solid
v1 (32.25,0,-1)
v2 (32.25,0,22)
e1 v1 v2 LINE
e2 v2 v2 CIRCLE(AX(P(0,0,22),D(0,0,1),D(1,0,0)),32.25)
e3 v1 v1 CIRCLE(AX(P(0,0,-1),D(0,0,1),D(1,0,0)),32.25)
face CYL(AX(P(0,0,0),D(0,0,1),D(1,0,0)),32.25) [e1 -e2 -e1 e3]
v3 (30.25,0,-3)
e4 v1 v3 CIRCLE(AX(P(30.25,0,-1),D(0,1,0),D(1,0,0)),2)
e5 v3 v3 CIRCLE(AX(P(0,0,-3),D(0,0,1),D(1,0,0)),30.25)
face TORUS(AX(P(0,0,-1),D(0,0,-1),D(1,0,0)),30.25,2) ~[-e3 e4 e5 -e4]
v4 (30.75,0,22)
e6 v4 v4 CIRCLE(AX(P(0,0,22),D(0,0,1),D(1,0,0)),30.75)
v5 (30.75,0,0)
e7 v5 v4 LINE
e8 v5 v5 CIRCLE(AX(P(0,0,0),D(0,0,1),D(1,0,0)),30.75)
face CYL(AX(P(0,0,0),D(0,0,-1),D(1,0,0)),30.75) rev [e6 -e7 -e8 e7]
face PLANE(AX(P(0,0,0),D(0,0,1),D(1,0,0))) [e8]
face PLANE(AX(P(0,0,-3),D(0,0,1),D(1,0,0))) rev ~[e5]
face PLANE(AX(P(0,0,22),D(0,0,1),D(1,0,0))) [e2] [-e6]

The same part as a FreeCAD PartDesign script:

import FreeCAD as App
import Part
import Sketcher

V = App.Vector


def edges_at(feature, points):
    """Names of the edges that pass closest to the given points."""
    edges = feature.Shape.Edges
    near = lambda p: min(range(len(edges)), key=lambda i: edges[i].distToShape(Part.Vertex(*p))[0])
    return sorted({f"Edge{near(p) + 1}" for p in points})

doc = App.newDocument("Part")
body = doc.addObject("PartDesign::Body", "Body")

sketch1 = body.newObject("Sketcher::SketchObject", "Sketch")
sketch1.AttachmentSupport = (doc.getObject("XY_Plane"), [""])
sketch1.MapMode = "FlatFace"
sketch1.addGeometry([
    Part.Circle(V(0, 0, 0), V(0, 0, 1), 32),
    Part.Circle(V(0, 0, 0), V(0, 0, 1), 31),
], False)
sketch1.addConstraint([
    Sketcher.Constraint("Coincident", 0, 3, -1, 1),
    Sketcher.Constraint("Coincident", 1, 3, -1, 1),
    Sketcher.Constraint("Diameter", 0, 64.5),
    Sketcher.Constraint("Diameter", 1, 61.5),
])
pad1 = body.newObject("PartDesign::Pad", "Pad")
pad1.Profile = sketch1
pad1.Length = 22

sketch2 = body.newObject("Sketcher::SketchObject", "Sketch001")
sketch2.AttachmentSupport = (doc.getObject("XY_Plane"), [""])
sketch2.MapMode = "FlatFace"
sketch2.addGeometry(Part.Circle(V(0, 0, 0), V(0, 0, 1), 32), False)
sketch2.addConstraint([
    Sketcher.Constraint("Coincident", 0, 3, -1, 1),
    Sketcher.Constraint("Diameter", 0, 64.5),
])
pad2 = body.newObject("PartDesign::Pad", "Pad001")
pad2.Profile = sketch2
pad2.Length = 3
pad2.Reversed = True
doc.recompute()

fillet = body.newObject("PartDesign::Fillet", "Fillet")
fillet.Base = (pad2, edges_at(pad2, [(-32.25, 0, -3)]))
fillet.Radius = 2

doc.recompute()
